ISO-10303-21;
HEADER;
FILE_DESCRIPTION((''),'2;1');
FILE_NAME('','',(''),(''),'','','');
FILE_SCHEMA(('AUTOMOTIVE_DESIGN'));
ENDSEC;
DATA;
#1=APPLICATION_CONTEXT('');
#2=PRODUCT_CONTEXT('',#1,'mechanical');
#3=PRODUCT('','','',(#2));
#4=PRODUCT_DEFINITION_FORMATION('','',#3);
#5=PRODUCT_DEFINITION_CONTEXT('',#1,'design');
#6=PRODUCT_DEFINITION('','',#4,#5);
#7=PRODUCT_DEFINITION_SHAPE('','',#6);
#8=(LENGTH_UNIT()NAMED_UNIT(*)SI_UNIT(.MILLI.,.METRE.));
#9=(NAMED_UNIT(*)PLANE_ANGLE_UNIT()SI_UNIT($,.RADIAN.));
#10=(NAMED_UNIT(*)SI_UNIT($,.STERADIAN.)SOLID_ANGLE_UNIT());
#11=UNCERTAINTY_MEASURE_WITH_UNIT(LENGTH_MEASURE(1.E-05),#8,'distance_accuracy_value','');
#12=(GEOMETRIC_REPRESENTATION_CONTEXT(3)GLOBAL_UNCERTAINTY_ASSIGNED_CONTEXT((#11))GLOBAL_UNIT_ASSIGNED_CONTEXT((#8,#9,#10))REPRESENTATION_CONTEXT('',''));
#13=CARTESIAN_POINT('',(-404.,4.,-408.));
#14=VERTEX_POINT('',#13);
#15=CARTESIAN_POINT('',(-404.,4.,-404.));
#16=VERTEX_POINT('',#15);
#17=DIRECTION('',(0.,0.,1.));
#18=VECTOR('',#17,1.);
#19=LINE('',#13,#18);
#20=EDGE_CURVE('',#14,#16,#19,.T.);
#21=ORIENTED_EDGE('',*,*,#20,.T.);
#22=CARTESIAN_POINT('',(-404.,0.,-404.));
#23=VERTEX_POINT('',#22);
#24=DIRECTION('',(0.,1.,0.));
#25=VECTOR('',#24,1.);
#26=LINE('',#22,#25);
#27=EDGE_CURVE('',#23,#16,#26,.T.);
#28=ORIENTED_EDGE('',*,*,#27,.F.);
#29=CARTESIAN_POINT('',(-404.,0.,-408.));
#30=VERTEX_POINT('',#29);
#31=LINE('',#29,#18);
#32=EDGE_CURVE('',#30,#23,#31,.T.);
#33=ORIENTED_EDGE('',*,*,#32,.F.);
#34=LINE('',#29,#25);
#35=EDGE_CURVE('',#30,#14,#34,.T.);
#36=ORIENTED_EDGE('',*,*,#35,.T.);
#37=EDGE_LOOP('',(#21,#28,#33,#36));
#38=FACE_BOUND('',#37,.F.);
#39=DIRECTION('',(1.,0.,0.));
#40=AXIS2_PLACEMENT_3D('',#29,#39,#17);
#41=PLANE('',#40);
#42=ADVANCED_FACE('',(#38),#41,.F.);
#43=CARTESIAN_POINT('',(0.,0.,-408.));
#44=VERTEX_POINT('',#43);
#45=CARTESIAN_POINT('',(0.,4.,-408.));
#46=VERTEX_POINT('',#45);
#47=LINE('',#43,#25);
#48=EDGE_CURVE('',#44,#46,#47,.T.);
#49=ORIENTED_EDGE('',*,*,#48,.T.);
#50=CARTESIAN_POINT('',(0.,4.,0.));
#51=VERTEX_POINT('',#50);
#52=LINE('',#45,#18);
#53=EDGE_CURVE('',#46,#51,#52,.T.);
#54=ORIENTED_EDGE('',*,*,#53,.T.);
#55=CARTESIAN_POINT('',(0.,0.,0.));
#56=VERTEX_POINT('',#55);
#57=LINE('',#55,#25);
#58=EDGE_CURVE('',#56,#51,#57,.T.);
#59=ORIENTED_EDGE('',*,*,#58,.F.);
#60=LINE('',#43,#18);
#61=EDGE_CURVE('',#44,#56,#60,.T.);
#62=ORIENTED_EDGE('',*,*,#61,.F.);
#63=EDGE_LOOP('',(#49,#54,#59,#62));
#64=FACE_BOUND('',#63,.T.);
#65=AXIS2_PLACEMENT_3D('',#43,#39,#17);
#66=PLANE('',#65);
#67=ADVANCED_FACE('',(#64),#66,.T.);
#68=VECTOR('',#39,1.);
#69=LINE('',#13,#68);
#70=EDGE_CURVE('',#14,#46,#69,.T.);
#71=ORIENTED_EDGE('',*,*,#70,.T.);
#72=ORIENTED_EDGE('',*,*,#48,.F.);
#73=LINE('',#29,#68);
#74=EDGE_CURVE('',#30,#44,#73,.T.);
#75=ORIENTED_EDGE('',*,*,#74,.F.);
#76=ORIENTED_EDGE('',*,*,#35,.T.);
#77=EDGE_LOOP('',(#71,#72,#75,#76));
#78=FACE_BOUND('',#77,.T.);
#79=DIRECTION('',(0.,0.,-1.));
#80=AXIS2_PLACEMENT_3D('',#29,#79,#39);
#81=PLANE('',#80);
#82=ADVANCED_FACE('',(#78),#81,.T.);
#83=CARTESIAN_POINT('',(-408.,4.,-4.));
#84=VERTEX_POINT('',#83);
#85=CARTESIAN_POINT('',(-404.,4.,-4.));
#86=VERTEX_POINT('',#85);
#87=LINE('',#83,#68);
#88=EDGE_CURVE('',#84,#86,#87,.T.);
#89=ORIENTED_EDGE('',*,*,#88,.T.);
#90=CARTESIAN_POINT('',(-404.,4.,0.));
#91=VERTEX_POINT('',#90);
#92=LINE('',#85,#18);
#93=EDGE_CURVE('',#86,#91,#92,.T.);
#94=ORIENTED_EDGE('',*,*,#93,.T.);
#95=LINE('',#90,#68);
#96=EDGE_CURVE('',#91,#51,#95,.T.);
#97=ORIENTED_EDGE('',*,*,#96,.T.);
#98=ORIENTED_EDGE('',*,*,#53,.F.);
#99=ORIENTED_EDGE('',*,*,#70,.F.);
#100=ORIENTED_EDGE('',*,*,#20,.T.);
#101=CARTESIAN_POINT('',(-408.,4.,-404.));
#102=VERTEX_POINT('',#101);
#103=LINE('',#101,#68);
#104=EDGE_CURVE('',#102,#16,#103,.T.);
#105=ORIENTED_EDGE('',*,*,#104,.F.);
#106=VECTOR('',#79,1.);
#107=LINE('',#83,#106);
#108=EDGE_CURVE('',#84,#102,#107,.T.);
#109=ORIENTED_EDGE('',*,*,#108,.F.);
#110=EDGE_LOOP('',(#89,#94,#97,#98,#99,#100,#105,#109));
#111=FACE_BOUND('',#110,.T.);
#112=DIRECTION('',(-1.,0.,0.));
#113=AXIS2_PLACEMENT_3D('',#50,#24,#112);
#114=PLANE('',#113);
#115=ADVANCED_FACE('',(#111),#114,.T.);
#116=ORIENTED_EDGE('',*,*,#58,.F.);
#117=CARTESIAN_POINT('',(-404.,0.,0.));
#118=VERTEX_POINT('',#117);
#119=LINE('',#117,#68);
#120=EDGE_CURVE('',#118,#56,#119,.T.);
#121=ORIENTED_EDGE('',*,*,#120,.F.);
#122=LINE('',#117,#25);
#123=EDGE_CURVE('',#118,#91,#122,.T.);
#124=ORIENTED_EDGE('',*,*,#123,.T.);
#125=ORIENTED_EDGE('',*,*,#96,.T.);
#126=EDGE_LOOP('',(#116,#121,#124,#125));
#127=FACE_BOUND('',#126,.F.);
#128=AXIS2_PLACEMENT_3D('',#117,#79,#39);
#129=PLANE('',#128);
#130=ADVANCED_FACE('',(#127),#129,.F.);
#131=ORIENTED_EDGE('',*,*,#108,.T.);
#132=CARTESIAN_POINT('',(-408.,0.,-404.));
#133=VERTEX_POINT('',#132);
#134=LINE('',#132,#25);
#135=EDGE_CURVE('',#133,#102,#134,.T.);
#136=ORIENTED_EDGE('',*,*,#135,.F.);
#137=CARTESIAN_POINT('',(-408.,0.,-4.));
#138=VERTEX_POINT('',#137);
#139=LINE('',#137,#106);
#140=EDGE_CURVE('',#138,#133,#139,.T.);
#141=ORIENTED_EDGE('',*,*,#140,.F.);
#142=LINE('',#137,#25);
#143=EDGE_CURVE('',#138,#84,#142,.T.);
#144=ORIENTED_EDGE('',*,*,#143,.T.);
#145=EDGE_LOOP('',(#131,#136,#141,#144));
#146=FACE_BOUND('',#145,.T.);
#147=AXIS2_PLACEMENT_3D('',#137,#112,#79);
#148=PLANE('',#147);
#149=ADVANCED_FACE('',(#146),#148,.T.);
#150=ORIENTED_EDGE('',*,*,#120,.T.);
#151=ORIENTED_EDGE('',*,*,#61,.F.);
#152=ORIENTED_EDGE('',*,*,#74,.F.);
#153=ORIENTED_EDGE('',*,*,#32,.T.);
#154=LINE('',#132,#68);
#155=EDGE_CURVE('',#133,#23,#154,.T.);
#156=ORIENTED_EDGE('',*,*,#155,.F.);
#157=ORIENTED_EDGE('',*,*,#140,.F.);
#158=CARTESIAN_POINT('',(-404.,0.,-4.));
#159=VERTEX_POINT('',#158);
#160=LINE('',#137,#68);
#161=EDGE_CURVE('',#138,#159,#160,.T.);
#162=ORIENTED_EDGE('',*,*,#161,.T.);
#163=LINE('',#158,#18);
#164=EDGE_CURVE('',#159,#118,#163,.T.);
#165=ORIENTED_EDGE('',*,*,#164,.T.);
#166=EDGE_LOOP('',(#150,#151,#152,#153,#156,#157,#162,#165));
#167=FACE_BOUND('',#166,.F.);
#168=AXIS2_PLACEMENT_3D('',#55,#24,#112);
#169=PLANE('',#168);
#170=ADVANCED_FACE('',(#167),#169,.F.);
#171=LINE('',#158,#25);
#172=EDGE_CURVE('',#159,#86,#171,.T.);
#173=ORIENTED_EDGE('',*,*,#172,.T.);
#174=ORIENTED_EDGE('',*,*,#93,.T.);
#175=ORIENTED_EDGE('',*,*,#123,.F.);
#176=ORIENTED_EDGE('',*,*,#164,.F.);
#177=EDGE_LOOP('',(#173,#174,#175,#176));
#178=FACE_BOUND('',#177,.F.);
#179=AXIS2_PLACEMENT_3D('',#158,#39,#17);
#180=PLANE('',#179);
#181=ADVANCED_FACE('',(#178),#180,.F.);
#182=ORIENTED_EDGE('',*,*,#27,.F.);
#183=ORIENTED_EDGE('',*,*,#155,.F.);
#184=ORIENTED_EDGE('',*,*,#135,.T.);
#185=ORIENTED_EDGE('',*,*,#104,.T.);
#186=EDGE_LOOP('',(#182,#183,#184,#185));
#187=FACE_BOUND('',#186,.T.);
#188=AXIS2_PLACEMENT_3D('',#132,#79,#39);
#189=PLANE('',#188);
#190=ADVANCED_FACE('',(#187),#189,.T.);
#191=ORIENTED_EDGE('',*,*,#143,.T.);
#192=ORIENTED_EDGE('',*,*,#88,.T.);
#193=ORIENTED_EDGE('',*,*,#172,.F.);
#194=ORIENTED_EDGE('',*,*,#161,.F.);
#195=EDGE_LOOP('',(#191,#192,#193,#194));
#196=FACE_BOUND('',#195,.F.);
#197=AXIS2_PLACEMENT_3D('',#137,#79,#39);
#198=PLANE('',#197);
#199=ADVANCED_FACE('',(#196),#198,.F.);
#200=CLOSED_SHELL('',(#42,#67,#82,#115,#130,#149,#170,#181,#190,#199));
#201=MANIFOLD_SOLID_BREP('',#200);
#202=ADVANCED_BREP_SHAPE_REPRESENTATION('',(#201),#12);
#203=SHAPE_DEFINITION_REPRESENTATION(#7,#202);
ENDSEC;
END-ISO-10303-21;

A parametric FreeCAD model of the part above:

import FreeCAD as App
import Part
import Sketcher
Q = App.Units.Quantity


def add_polygon(sketch, points):
    """Adds a closed chain of lines whose ends are joined by coincident constraints."""
    first, n = sketch.GeometryCount, len(points)
    for a, b in zip(points, points[1:] + points[:1]):
        sketch.addGeometry(Part.LineSegment(App.Vector(*a, 0), App.Vector(*b, 0)), False)
    for i in range(n):
        sketch.addConstraint(Sketcher.Constraint("Coincident", first + i, 2, first + (i + 1) % n, 1))

doc = App.newDocument("Part")
body = doc.addObject("PartDesign::Body", "Body")

sketch1 = body.newObject("Sketcher::SketchObject", "Sketch")
sketch1.AttachmentSupport = (doc.getObject("XZ_Plane"), [""])
sketch1.MapMode = "FlatFace"
add_polygon(sketch1, [(0, 0), (0, -408), (-404, -408), (-404, -404), (-408, -404), (-408, -4), (-404, -4), (-404, 0)])
sketch1.addConstraint([
    Sketcher.Constraint("Vertical", 0),
    Sketcher.Constraint("Horizontal", 1),
    Sketcher.Constraint("Vertical", 2),
    Sketcher.Constraint("Horizontal", 3),
    Sketcher.Constraint("Vertical", 4),
    Sketcher.Constraint("Horizontal", 5),
    Sketcher.Constraint("Vertical", 6),
    Sketcher.Constraint("Horizontal", 7),
    Sketcher.Constraint("Coincident", 7, 2, -1, 1),
    Sketcher.Constraint("Vertical", 2, 2, 5, 2),
    Sketcher.Constraint("Equal", 5, 2),
    Sketcher.Constraint("Equal", 2, 6),
    Sketcher.Constraint("DistanceX", 1, 2, 1, 1, Q("404 mm")),
    Sketcher.Constraint("DistanceX", 3, 2, 3, 1, Q("4 mm")),
    Sketcher.Constraint("DistanceY", 0, 2, 0, 1, Q("408 mm")),
])
pad1 = body.newObject("PartDesign::Pad", "Pad")
pad1.Profile = sketch1
pad1.Length = 4
pad1.Reversed = True

doc.recompute()
